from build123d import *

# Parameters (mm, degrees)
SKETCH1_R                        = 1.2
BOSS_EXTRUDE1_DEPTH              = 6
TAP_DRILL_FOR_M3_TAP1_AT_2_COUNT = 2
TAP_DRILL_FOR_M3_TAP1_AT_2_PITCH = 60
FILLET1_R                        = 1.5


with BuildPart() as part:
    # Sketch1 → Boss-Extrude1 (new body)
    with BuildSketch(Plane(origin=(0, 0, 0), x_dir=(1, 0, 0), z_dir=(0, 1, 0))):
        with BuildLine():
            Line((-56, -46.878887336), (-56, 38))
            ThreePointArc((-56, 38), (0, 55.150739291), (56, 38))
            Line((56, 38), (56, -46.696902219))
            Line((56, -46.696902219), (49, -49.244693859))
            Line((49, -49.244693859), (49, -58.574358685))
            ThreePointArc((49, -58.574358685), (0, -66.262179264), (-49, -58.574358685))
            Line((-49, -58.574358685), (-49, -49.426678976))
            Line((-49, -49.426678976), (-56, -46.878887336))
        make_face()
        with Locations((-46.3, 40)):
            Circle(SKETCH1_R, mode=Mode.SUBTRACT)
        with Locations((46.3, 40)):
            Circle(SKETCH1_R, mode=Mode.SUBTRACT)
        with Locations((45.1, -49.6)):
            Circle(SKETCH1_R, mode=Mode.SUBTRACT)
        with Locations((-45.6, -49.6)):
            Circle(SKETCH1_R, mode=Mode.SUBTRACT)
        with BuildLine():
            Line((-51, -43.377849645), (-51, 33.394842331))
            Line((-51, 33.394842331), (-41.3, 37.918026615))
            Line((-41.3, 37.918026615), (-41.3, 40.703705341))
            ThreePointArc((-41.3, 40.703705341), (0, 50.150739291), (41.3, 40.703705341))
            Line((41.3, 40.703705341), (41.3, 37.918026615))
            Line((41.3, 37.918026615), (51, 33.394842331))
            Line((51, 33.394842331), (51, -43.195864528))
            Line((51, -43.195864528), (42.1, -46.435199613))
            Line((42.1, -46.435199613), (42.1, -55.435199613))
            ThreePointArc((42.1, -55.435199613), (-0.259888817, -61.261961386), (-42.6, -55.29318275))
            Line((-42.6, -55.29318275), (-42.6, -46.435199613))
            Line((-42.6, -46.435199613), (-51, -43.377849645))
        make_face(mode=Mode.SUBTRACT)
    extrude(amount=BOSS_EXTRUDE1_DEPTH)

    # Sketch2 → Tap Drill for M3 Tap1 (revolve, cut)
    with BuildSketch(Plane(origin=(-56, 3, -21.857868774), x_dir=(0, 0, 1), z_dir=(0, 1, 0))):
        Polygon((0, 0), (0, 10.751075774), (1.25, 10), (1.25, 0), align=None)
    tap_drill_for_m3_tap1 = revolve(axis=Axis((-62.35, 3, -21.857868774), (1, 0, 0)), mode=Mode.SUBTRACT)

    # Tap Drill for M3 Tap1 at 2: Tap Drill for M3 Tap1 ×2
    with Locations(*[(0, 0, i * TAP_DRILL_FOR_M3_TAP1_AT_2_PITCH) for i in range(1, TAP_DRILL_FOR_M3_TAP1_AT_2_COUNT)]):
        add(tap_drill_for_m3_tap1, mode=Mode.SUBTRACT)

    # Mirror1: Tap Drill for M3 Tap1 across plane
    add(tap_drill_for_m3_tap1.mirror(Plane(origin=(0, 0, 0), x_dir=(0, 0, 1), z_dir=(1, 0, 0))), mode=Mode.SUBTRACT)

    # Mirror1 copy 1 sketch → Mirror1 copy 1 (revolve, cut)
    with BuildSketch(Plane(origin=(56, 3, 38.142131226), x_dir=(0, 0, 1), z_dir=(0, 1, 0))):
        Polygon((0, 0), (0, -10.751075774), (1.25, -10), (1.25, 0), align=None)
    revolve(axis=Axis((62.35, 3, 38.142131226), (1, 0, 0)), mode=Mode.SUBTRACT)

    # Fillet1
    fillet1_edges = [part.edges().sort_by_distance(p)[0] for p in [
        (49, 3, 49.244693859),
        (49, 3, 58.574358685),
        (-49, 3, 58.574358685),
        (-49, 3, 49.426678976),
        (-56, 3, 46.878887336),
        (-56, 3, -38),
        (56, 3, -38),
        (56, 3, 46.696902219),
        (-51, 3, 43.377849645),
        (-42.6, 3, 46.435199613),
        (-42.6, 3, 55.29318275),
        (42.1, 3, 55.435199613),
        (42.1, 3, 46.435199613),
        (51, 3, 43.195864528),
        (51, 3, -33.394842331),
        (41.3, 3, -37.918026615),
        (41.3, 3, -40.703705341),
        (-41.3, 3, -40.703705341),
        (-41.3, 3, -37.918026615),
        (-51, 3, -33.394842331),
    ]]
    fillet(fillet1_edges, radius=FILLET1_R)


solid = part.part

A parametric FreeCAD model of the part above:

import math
import FreeCAD as App
import Part
import Sketcher
from FreeCAD import Vector
Q = App.Units.Quantity


def edges_at(feature, points):
    """Names of the edges that pass closest to the given points."""
    edges = feature.Shape.Edges
    near = lambda p: min(range(len(edges)), key=lambda i: edges[i].distToShape(Part.Vertex(*p))[0])
    return sorted({f"Edge{near(p) + 1}" for p in points})

doc = App.newDocument("Part")
body = doc.addObject("PartDesign::Body", "Body")

# Sketch on XZ plane
sketch1 = doc.addObject("Sketcher::SketchObject", "Sketch")
body.addObject(sketch1)
sketch1.AttachmentSupport = (doc.XZ_Plane, [""])
sketch1.MapMode = "FlatFace"
sketch1.addGeometry([
    Part.LineSegment(Vector(-56, -38, 0), Vector(-56, 46.9, 0)),  # 0
    Part.LineSegment(Vector(-56, 46.9, 0), Vector(-49, 49.4, 0)),  # 1
    Part.LineSegment(Vector(-49, 49.4, 0), Vector(-49, 58.6, 0)),  # 2
    Part.ArcOfCircle(Part.Circle(Vector(0, -93.7, 0), Vector(0, 0, 1), 160), math.radians(72), math.radians(108)),  # 3
    Part.LineSegment(Vector(49, 58.6, 0), Vector(49, 49.2, 0)),  # 4
    Part.LineSegment(Vector(49, 49.2, 0), Vector(56, 46.7, 0)),  # 5
    Part.LineSegment(Vector(56, 46.7, 0), Vector(56, -38, 0)),  # 6
    Part.ArcOfCircle(Part.Circle(Vector(0, 44.8, 0), Vector(0, 0, 1), 100), math.radians(-124), math.radians(-56)),  # 7
    Part.Circle(Vector(45.1, 49.6, 0), Vector(0, 0, 1), 1.2),  # 8
    Part.Circle(Vector(-45.6, 49.6, 0), Vector(0, 0, 1), 1.2),  # 9
    Part.Circle(Vector(46.3, -40, 0), Vector(0, 0, 1), 1.2),  # 10
    Part.LineSegment(Vector(-51, 43.4, 0), Vector(-51, -33.4, 0)),  # 11
    Part.LineSegment(Vector(-51, -33.4, 0), Vector(-41.3, -37.9, 0)),  # 12
    Part.LineSegment(Vector(-41.3, -37.9, 0), Vector(-41.3, -40.7, 0)),  # 13
    Part.ArcOfCircle(Part.Circle(Vector(0, 44.8, 0), Vector(0, 0, 1), 95), math.radians(-116), math.radians(-64)),  # 14
    Part.LineSegment(Vector(41.3, -40.7, 0), Vector(41.3, -37.9, 0)),  # 15
    Part.LineSegment(Vector(41.3, -37.9, 0), Vector(51, -33.4, 0)),  # 16
    Part.LineSegment(Vector(51, -33.4, 0), Vector(51, 43.2, 0)),  # 17
    Part.LineSegment(Vector(51, 43.2, 0), Vector(42.1, 46.4, 0)),  # 18
    Part.LineSegment(Vector(42.1, 46.4, 0), Vector(42.1, 55.4, 0)),  # 19
    Part.ArcOfCircle(Part.Circle(Vector(0, -93.7, 0), Vector(0, 0, 1), 155), math.radians(74), math.radians(106)),  # 20
    Part.LineSegment(Vector(-42.6, 55.3, 0), Vector(-42.6, 46.4, 0)),  # 21
    Part.LineSegment(Vector(-42.6, 46.4, 0), Vector(-51, 43.4, 0)),  # 22
    Part.Circle(Vector(-46.3, -40, 0), Vector(0, 0, 1), 1.2),  # 23
], False)
sketch1.addConstraint([
    Sketcher.Constraint("Coincident", 0, 2, 1, 1),
    Sketcher.Constraint("Coincident", 1, 2, 2, 1),
    Sketcher.Constraint("Coincident", 2, 2, 3, 2),
    Sketcher.Constraint("Coincident", 3, 1, 4, 1),
    Sketcher.Constraint("Coincident", 4, 2, 5, 1),
    Sketcher.Constraint("Coincident", 5, 2, 6, 1),
    Sketcher.Constraint("Coincident", 6, 2, 7, 2),
    Sketcher.Constraint("Coincident", 7, 1, 0, 1),
    Sketcher.Constraint("Coincident", 11, 2, 12, 1),
    Sketcher.Constraint("Coincident", 12, 2, 13, 1),
    Sketcher.Constraint("Coincident", 13, 2, 14, 1),
    Sketcher.Constraint("Coincident", 14, 2, 15, 1),
    Sketcher.Constraint("Coincident", 15, 2, 16, 1),
    Sketcher.Constraint("Coincident", 16, 2, 17, 1),
    Sketcher.Constraint("Coincident", 17, 2, 18, 1),
    Sketcher.Constraint("Coincident", 18, 2, 19, 1),
    Sketcher.Constraint("Coincident", 19, 2, 20, 1),
    Sketcher.Constraint("Coincident", 20, 2, 21, 1),
    Sketcher.Constraint("Coincident", 21, 2, 22, 1),
    Sketcher.Constraint("Coincident", 22, 2, 11, 1),
    Sketcher.Constraint("Vertical", 0),
    Sketcher.Constraint("Vertical", 2),
    Sketcher.Constraint("Vertical", 4),
    Sketcher.Constraint("Vertical", 6),
    Sketcher.Constraint("Vertical", 11),
    Sketcher.Constraint("Vertical", 13),
    Sketcher.Constraint("Vertical", 15),
    Sketcher.Constraint("Vertical", 17),
    Sketcher.Constraint("Vertical", 19),
    Sketcher.Constraint("Vertical", 21),
    Sketcher.Constraint("Coincident", 14, 3, 7, 3),
    Sketcher.Constraint("Coincident", 20, 3, 3, 3),
    Sketcher.Constraint("Equal", 8, 9),
    Sketcher.Constraint("Equal", 9, 10),
    Sketcher.Constraint("Equal", 10, 23),
    Sketcher.Constraint("Symmetric", 10, 3, 23, 3, -2),
    Sketcher.Constraint("Symmetric", 2, 2, 3, 1, -2),
    Sketcher.Constraint("Symmetric", 6, 2, 7, 1, -2),
    Sketcher.Constraint("Symmetric", 12, 2, 15, 2, -2),
    Sketcher.Constraint("Symmetric", 11, 2, 16, 2, -2),
    Sketcher.Constraint("Parallel", 5, 18),
    Sketcher.Constraint("Parallel", 1, 22),
    Sketcher.Constraint("Horizontal", 8, 3, 9, 3),
    Sketcher.Constraint("Horizontal", 18, 2, 21, 2),
    Sketcher.Constraint("Equal", 1, 5),
    Sketcher.Constraint("Radius", 3, 160.0),
    Sketcher.Constraint("Radius", 7, 100.0),
    Sketcher.Constraint("Radius", 14, 95.0),
    Sketcher.Constraint("Radius", 20, 155.0),
    Sketcher.Constraint("Diameter", 8, 2.4),
    Sketcher.Constraint("DistanceY", 19, 1, 19, 2, 9.0),
    Sketcher.Constraint("Angle", 1, Q("20 deg")),
    Sketcher.Constraint("Angle", 12, Q("-25 deg")),
    Sketcher.Constraint("DistanceY", 10, 3, -1, 1, 40.0),
    Sketcher.Constraint("DistanceX", 0, 2, -1, 1, 56.0),
    Sketcher.Constraint("DistanceX", 1, 2, -1, 1, 49.0),
    Sketcher.Constraint("DistanceY", 6, 2, -1, 1, 38.0),
    Sketcher.Constraint("DistanceX", 11, 2, -1, 1, 51.0),
    Sketcher.Constraint("DistanceX", 23, 3, 12, 2, 5.0),
    Sketcher.Constraint("DistanceX", 18, 2, 8, 3, 3.0),
    Sketcher.Constraint("DistanceX", 9, 3, 20, 2, 3.0),
    Sketcher.Constraint("DistanceX", -1, 1, 8, 3, 45.1),
    Sketcher.Constraint("DistanceY", -1, 1, 8, 3, 49.6),
    Sketcher.Constraint("DistanceX", 9, 3, -1, 1, 45.6),
    Sketcher.Constraint("DistanceX", -1, 1, 10, 3, 46.3),
    Sketcher.Constraint("DistanceY", 2, 1, 2, 2, 9.14768),
    Sketcher.Constraint("DistanceY", 11, 2, 11, 1, 76.772692),
    Sketcher.Constraint("DistanceY", 13, 2, 13, 1, 2.785679),
    Sketcher.Constraint("DistanceY", 4, 2, 4, 1, 9.329665),
])
pad1 = doc.addObject("PartDesign::Pad", "Pad")
body.addObject(pad1)
pad1.Profile = sketch1
pad1.Length = 6
pad1.Reversed = True

# Sketch on XZ plane
sketch2 = doc.addObject("Sketcher::SketchObject", "Sketch001")
body.addObject(sketch2)
sketch2.AttachmentSupport = (doc.XZ_Plane, [""])
sketch2.MapMode = "FlatFace"
sketch2.AttachmentOffset = App.Placement(Vector(0, 0, -3), App.Rotation())
sketch2.addGeometry([
    Part.LineSegment(Vector(-45.2, -21.9, 0), Vector(-56, -21.9, 0)),
    Part.LineSegment(Vector(-56, -21.9, 0), Vector(-56, -20.6, 0)),
    Part.LineSegment(Vector(-56, -20.6, 0), Vector(-46, -20.6, 0)),
    Part.LineSegment(Vector(-46, -20.6, 0), Vector(-45.2, -21.9, 0)),
], False)
sketch2.addGeometry(Part.LineSegment(Vector(-56, -21.9, 0), Vector(-45.2, -21.9, 0)), True)  # axis
sketch2.addConstraint([
    Sketcher.Constraint("Coincident", 0, 2, 1, 1),
    Sketcher.Constraint("Coincident", 1, 2, 2, 1),
    Sketcher.Constraint("Coincident", 2, 2, 3, 1),
    Sketcher.Constraint("Coincident", 3, 2, 0, 1),
    Sketcher.Constraint("Horizontal", 0),
    Sketcher.Constraint("Vertical", 1),
    Sketcher.Constraint("Horizontal", 2),
    Sketcher.Constraint("Horizontal", 4),
    Sketcher.Constraint("Coincident", 4, 1, 0, 2),
    Sketcher.Constraint("Equal", 0, 4),
    Sketcher.Constraint("DistanceX", 2, 1, 2, 2, 10.0),
    Sketcher.Constraint("Angle", 3, Q("-59 deg")),
    Sketcher.Constraint("DistanceX", 0, 2, -1, 1, 56.0),
    Sketcher.Constraint("DistanceY", 1, 1, 1, 2, 1.25),
    Sketcher.Constraint("DistanceY", 0, 2, -1, 1, 21.857869),
])
groove = doc.addObject("PartDesign::Groove", "Groove")
body.addObject(groove)
groove.Profile = sketch2
groove.ReferenceAxis = (sketch2, ["Axis0"])
groove.Angle = 360
doc.recompute()

linearpattern = doc.addObject("PartDesign::LinearPattern", "LinearPattern")
body.addObject(linearpattern)
linearpattern.Originals = [groove]
linearpattern.Direction = (doc.Z_Axis, [""])
linearpattern.Mode = "offset"
linearpattern.Offset = 60
linearpattern.Occurrences = 2
body.Tip = linearpattern
doc.recompute()

mirrored = doc.addObject("PartDesign::Mirrored", "Mirrored")
body.addObject(mirrored)
mirrored.Originals = [groove]
mirrored.MirrorPlane = (doc.YZ_Plane, [""])
body.Tip = mirrored

# Sketch on XZ plane
sketch3 = doc.addObject("Sketcher::SketchObject", "Sketch002")
body.addObject(sketch3)
sketch3.AttachmentSupport = (doc.XZ_Plane, [""])
sketch3.MapMode = "FlatFace"
sketch3.AttachmentOffset = App.Placement(Vector(0, 0, -3), App.Rotation())
sketch3.addGeometry([
    Part.LineSegment(Vector(56, 38.1, 0), Vector(45.2, 38.1, 0)),
    Part.LineSegment(Vector(45.2, 38.1, 0), Vector(46, 39.4, 0)),
    Part.LineSegment(Vector(46, 39.4, 0), Vector(56, 39.4, 0)),
    Part.LineSegment(Vector(56, 39.4, 0), Vector(56, 38.1, 0)),
], False)
sketch3.addGeometry(Part.LineSegment(Vector(45.2, 38.1, 0), Vector(56, 38.1, 0)), True)  # axis
sketch3.addConstraint([
    Sketcher.Constraint("Coincident", 0, 2, 1, 1),
    Sketcher.Constraint("Coincident", 1, 2, 2, 1),
    Sketcher.Constraint("Coincident", 2, 2, 3, 1),
    Sketcher.Constraint("Coincident", 3, 2, 0, 1),
    Sketcher.Constraint("Horizontal", 0),
    Sketcher.Constraint("Horizontal", 2),
    Sketcher.Constraint("Vertical", 3),
    Sketcher.Constraint("Horizontal", 4),
    Sketcher.Constraint("Coincident", 4, 1, 0, 2),
    Sketcher.Constraint("Vertical", 2, 2, 4, 2),
    Sketcher.Constraint("DistanceX", 2, 1, 2, 2, 10.0),
    Sketcher.Constraint("Angle", 1, Q("59 deg")),
    Sketcher.Constraint("DistanceX", -1, 1, 1, 2, 46.0),
    Sketcher.Constraint("DistanceY", 3, 2, 3, 1, 1.25),
    Sketcher.Constraint("DistanceY", -1, 1, 0, 2, 38.142131),
])
groove2 = doc.addObject("PartDesign::Groove", "Groove001")
body.addObject(groove2)
groove2.Profile = sketch3
groove2.ReferenceAxis = (sketch3, ["Axis0"])
groove2.Angle = 360
doc.recompute()

fillet = doc.addObject("PartDesign::Fillet", "Fillet")
body.addObject(fillet)
fillet.Base = (groove2, edges_at(groove2, [
    (49, 3, 49.245),
    (49, 3, 58.574),
    (-49, 3, 58.574),
    (-49, 3, 49.427),
    (-56, 3, 46.879),
    (-56, 3, -38),
    (56, 3, -38),
    (56, 3, 46.697),
    (-51, 3, 43.378),
    (-42.6, 3, 46.435),
    (-42.6, 3, 55.293),
    (42.1, 3, 55.435),
    (42.1, 3, 46.435),
    (51, 3, 43.196),
    (51, 3, -33.395),
    (41.3, 3, -37.918),
    (41.3, 3, -40.704),
    (-41.3, 3, -40.704),
    (-41.3, 3, -37.918),
    (-51, 3, -33.395),
]))
fillet.Radius = 1.5

doc.recompute()
